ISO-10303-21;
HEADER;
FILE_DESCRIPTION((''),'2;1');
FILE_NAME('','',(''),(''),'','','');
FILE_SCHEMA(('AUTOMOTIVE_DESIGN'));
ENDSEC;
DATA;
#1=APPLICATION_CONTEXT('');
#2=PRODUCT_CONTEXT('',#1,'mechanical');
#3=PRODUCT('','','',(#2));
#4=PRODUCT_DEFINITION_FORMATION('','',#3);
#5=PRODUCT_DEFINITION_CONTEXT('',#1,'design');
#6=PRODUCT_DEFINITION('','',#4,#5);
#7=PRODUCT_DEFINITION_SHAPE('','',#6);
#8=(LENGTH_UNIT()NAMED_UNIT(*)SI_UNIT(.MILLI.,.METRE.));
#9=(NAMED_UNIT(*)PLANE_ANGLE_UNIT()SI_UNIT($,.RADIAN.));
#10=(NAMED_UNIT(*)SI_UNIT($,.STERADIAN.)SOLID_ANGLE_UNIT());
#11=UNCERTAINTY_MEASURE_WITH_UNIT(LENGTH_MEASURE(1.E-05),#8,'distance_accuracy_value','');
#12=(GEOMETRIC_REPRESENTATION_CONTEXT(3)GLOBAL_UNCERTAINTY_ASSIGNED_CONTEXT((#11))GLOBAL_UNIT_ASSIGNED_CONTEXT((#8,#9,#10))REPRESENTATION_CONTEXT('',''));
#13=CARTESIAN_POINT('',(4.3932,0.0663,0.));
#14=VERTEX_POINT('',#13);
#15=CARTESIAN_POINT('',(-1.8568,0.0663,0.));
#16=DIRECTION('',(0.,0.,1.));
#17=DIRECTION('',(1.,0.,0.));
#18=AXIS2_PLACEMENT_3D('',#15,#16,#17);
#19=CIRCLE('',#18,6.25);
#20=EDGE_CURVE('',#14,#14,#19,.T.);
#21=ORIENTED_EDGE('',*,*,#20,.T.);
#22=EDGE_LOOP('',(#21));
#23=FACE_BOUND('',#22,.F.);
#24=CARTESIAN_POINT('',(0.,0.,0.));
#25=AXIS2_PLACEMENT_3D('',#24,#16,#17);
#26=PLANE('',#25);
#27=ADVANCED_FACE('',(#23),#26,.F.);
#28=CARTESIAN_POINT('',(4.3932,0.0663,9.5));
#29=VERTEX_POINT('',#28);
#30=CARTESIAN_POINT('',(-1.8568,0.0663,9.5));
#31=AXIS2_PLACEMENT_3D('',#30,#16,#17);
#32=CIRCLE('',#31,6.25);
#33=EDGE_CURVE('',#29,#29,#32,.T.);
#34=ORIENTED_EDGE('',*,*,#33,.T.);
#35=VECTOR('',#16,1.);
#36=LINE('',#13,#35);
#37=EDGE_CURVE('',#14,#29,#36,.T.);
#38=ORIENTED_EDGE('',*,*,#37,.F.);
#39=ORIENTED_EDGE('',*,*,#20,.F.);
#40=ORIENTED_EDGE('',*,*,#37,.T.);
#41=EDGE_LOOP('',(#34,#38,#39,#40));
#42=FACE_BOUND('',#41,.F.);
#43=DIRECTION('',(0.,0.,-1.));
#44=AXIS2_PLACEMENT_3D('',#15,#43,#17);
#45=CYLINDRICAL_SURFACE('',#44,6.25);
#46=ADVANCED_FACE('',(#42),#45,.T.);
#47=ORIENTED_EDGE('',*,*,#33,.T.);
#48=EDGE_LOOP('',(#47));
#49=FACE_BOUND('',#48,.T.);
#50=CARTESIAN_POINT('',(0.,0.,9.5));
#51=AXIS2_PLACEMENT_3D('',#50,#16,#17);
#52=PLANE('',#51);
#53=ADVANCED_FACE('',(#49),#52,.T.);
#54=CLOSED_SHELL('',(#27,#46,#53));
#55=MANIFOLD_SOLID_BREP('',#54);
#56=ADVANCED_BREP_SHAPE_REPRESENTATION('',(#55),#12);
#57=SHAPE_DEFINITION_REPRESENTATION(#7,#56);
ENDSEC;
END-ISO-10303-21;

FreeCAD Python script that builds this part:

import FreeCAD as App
import Part
import Sketcher
Q = App.Units.Quantity

doc = App.newDocument("Part")
body = doc.addObject("PartDesign::Body", "Body")

sketch1 = doc.addObject("Sketcher::SketchObject", "Sketch")
body.addObject(sketch1)
sketch1.AttachmentSupport = (doc.XY_Plane, [""])
sketch1.MapMode = "FlatFace"
sketch1.addGeometry(Part.Circle(App.Vector(-2, 0, 0), App.Vector(0, 0, 1), 6), False)
sketch1.addConstraint([
    Sketcher.Constraint("Diameter", 0, Q("12.5 mm")),
    Sketcher.Constraint("DistanceX", 0, 3, -1, 1, Q("1.8568 mm")),
    Sketcher.Constraint("DistanceY", -1, 1, 0, 3, Q("0.0663 mm")),
])
pad1 = doc.addObject("PartDesign::Pad", "Pad")
body.addObject(pad1)
pad1.Profile = sketch1
pad1.Length = 9.5

doc.recompute()
